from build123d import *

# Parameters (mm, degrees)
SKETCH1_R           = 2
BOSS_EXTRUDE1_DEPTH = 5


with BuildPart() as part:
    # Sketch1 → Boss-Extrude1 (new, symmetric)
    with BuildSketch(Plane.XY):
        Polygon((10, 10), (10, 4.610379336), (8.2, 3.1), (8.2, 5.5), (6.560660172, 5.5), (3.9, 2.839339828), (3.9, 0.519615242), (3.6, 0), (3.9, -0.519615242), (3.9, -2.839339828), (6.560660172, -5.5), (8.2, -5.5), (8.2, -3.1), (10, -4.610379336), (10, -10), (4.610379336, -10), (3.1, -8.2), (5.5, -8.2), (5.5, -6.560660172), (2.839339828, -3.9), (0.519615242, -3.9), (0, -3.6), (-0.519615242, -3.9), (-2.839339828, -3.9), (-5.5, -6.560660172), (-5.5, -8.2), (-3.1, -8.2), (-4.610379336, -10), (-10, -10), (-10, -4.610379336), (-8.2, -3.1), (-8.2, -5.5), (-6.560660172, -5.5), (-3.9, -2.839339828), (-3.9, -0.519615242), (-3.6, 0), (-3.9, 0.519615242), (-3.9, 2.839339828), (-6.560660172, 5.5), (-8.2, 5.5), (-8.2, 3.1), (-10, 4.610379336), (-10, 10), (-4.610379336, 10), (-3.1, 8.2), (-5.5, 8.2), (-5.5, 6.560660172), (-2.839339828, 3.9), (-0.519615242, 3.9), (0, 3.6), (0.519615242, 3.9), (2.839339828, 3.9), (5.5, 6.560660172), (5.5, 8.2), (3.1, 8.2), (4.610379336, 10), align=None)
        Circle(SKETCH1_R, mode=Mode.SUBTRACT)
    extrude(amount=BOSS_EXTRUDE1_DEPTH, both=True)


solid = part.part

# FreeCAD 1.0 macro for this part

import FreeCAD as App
import Part
import Sketcher
from FreeCAD import Vector
Q = App.Units.Quantity


def add_polygon(sketch, points):
    """Adds a closed chain of lines whose ends are joined by coincident constraints."""
    first, n = sketch.GeometryCount, len(points)
    for a, b in zip(points, points[1:] + points[:1]):
        sketch.addGeometry(Part.LineSegment(App.Vector(*a, 0), App.Vector(*b, 0)), False)
    for i in range(n):
        sketch.addConstraint(Sketcher.Constraint("Coincident", first + i, 2, first + (i + 1) % n, 1))

doc = App.newDocument("Part")
body = doc.addObject("PartDesign::Body", "Body")

# Sketch on XY plane
sketch1 = body.newObject("Sketcher::SketchObject", "Sketch")
sketch1.AttachmentSupport = (doc.getObject("XY_Plane"), [""])
sketch1.MapMode = "FlatFace"
add_polygon(sketch1, [(10, 4.6), (10, 10), (4.6, 10), (3.1, 8.2), (5.5, 8.2), (5.5, 6.6), (2.8, 3.9), (0.5, 3.9), (0, 3.6), (-0.5, 3.9), (-2.8, 3.9), (-5.5, 6.6), (-5.5, 8.2), (-3.1, 8.2), (-4.6, 10), (-10, 10), (-10, 4.6), (-8.2, 3.1), (-8.2, 5.5), (-6.6, 5.5), (-3.9, 2.8), (-3.9, 0.5), (-3.6, 0), (-3.9, -0.5), (-3.9, -2.8), (-6.6, -5.5), (-8.2, -5.5), (-8.2, -3.1), (-10, -4.6), (-10, -10), (-4.6, -10), (-3.1, -8.2), (-5.5, -8.2), (-5.5, -6.6), (-2.8, -3.9), (-0.5, -3.9), (0, -3.6), (0.5, -3.9), (2.8, -3.9), (5.5, -6.6), (5.5, -8.2), (3.1, -8.2), (4.6, -10), (10, -10), (10, -4.6), (8.2, -3.1), (8.2, -5.5), (6.6, -5.5), (3.9, -2.8), (3.9, -0.5), (3.6, 0), (3.9, 0.5), (3.9, 2.8), (6.6, 5.5), (8.2, 5.5), (8.2, 3.1)])  # lines 0-55
sketch1.addGeometry(Part.Circle(Vector(0, 0, 0), Vector(0, 0, 1), 2), False)  # 56
sketch1.addConstraint([
    Sketcher.Constraint("Vertical", 0),
    Sketcher.Constraint("Horizontal", 1),
    Sketcher.Constraint("Horizontal", 3),
    Sketcher.Constraint("Vertical", 4),
    Sketcher.Constraint("Horizontal", 6),
    Sketcher.Constraint("Horizontal", 9),
    Sketcher.Constraint("Vertical", 11),
    Sketcher.Constraint("Horizontal", 12),
    Sketcher.Constraint("Horizontal", 14),
    Sketcher.Constraint("Vertical", 15),
    Sketcher.Constraint("Vertical", 17),
    Sketcher.Constraint("Horizontal", 18),
    Sketcher.Constraint("Vertical", 20),
    Sketcher.Constraint("Vertical", 23),
    Sketcher.Constraint("Horizontal", 25),
    Sketcher.Constraint("Vertical", 26),
    Sketcher.Constraint("Vertical", 28),
    Sketcher.Constraint("Horizontal", 29),
    Sketcher.Constraint("Horizontal", 31),
    Sketcher.Constraint("Vertical", 32),
    Sketcher.Constraint("Horizontal", 34),
    Sketcher.Constraint("Horizontal", 37),
    Sketcher.Constraint("Vertical", 39),
    Sketcher.Constraint("Horizontal", 40),
    Sketcher.Constraint("Horizontal", 42),
    Sketcher.Constraint("Vertical", 43),
    Sketcher.Constraint("Vertical", 45),
    Sketcher.Constraint("Horizontal", 46),
    Sketcher.Constraint("Vertical", 48),
    Sketcher.Constraint("Vertical", 51),
    Sketcher.Constraint("Horizontal", 53),
    Sketcher.Constraint("Vertical", 54),
    Sketcher.Constraint("Coincident", 56, 3, -1, 1),
    Sketcher.Constraint("Symmetric", 0, 2, 28, 2, -1, 1),
    Sketcher.Constraint("Symmetric", 2, 2, 30, 2, -1, 1),
    Sketcher.Constraint("Symmetric", 4, 2, 32, 2, -1, 1),
    Sketcher.Constraint("Symmetric", 5, 2, 33, 2, -1, 1),
    Sketcher.Constraint("Symmetric", 7, 2, 35, 2, -1, 1),
    Sketcher.Constraint("Symmetric", 8, 2, 36, 2, -1, 1),
    Sketcher.Constraint("Symmetric", 10, 2, 38, 2, -1, 1),
    Sketcher.Constraint("Symmetric", 12, 2, 40, 2, -1, 1),
    Sketcher.Constraint("Symmetric", 13, 2, 41, 2, -1, 1),
    Sketcher.Constraint("Symmetric", 15, 2, 43, 2, -1, 1),
    Sketcher.Constraint("Symmetric", 16, 2, 44, 2, -1, 1),
    Sketcher.Constraint("Symmetric", 18, 2, 46, 2, -1, 1),
    Sketcher.Constraint("Symmetric", 19, 2, 47, 2, -1, 1),
    Sketcher.Constraint("Symmetric", 21, 2, 49, 2, -1, 1),
    Sketcher.Constraint("Symmetric", 22, 2, 50, 2, -1, 1),
    Sketcher.Constraint("Symmetric", 24, 2, 52, 2, -1, 1),
    Sketcher.Constraint("Symmetric", 26, 2, 54, 2, -1, 1),
    Sketcher.Constraint("Symmetric", 6, 2, 8, 2, -2),
    Sketcher.Constraint("Symmetric", 4, 2, 10, 2, -2),
    Sketcher.Constraint("Symmetric", 2, 2, 12, 2, -2),
    Sketcher.Constraint("Symmetric", 1, 2, 13, 2, -2),
    Sketcher.Constraint("Symmetric", 27, 2, 43, 2, -2),
    Sketcher.Constraint("Symmetric", 26, 2, 44, 2, -2),
    Sketcher.Constraint("Symmetric", 24, 2, 46, 2, -2),
    Sketcher.Constraint("Symmetric", 23, 2, 47, 2, -2),
    Sketcher.Constraint("PointOnObject", 7, 2, -2),
    Sketcher.Constraint("PointOnObject", 21, 2, -1),
    Sketcher.Constraint("Perpendicular", 5, 10),
    Sketcher.Constraint("Perpendicular", 2, 16),
    Sketcher.Constraint("Parallel", 10, 19),
    Sketcher.Constraint("Perpendicular", 7, 21),
    Sketcher.Constraint("Perpendicular", 8, 22),
    Sketcher.Constraint("Perpendicular", 19, 24),
    Sketcher.Constraint("Perpendicular", 16, 30),
    Sketcher.Constraint("Perpendicular", 21, 35),
    Sketcher.Constraint("Perpendicular", 33, 38),
    Sketcher.Constraint("Perpendicular", 35, 49),
    Sketcher.Constraint("Perpendicular", 47, 52),
    Sketcher.Constraint("Perpendicular", 41, 55),
    Sketcher.Constraint("Equal", 42, 0),
    Sketcher.Constraint("Equal", 53, 4),
    Sketcher.Constraint("Equal", 40, 17),
    Sketcher.Constraint("Equal", 37, 20),
    Sketcher.Constraint("Equal", 13, 16),
    Sketcher.Constraint("Equal", 10, 19),
    Sketcher.Constraint("Equal", 8, 21),
    Sketcher.Constraint("Diameter", 56, Q("4 mm")),
    Sketcher.Constraint("Angle", 2, Q("-130 deg")),
    Sketcher.Constraint("Angle", 7, Q("-150 deg")),
    Sketcher.Constraint("DistanceX", 3, 1, 3, 2, Q("2.4 mm")),
    Sketcher.Constraint("DistanceX", -1, 1, 0, 2, Q("10 mm")),
    Sketcher.Constraint("Distance", 7, Q("0.6 mm")),
    Sketcher.Constraint("DistanceX", -1, 1, 2, 2, Q("3.1 mm")),
    Sketcher.Constraint("DistanceY", -1, 1, 2, 2, Q("8.2 mm")),
    Sketcher.Constraint("DistanceY", -1, 1, 5, 2, Q("3.9 mm")),
    Sketcher.Constraint("DistanceX", 18, 1, 18, 2, Q("1.63934 mm")),
])
pad1 = body.newObject("PartDesign::Pad", "Pad")
pad1.Profile = sketch1
pad1.Length = 10
pad1.Midplane = True

doc.recompute()
